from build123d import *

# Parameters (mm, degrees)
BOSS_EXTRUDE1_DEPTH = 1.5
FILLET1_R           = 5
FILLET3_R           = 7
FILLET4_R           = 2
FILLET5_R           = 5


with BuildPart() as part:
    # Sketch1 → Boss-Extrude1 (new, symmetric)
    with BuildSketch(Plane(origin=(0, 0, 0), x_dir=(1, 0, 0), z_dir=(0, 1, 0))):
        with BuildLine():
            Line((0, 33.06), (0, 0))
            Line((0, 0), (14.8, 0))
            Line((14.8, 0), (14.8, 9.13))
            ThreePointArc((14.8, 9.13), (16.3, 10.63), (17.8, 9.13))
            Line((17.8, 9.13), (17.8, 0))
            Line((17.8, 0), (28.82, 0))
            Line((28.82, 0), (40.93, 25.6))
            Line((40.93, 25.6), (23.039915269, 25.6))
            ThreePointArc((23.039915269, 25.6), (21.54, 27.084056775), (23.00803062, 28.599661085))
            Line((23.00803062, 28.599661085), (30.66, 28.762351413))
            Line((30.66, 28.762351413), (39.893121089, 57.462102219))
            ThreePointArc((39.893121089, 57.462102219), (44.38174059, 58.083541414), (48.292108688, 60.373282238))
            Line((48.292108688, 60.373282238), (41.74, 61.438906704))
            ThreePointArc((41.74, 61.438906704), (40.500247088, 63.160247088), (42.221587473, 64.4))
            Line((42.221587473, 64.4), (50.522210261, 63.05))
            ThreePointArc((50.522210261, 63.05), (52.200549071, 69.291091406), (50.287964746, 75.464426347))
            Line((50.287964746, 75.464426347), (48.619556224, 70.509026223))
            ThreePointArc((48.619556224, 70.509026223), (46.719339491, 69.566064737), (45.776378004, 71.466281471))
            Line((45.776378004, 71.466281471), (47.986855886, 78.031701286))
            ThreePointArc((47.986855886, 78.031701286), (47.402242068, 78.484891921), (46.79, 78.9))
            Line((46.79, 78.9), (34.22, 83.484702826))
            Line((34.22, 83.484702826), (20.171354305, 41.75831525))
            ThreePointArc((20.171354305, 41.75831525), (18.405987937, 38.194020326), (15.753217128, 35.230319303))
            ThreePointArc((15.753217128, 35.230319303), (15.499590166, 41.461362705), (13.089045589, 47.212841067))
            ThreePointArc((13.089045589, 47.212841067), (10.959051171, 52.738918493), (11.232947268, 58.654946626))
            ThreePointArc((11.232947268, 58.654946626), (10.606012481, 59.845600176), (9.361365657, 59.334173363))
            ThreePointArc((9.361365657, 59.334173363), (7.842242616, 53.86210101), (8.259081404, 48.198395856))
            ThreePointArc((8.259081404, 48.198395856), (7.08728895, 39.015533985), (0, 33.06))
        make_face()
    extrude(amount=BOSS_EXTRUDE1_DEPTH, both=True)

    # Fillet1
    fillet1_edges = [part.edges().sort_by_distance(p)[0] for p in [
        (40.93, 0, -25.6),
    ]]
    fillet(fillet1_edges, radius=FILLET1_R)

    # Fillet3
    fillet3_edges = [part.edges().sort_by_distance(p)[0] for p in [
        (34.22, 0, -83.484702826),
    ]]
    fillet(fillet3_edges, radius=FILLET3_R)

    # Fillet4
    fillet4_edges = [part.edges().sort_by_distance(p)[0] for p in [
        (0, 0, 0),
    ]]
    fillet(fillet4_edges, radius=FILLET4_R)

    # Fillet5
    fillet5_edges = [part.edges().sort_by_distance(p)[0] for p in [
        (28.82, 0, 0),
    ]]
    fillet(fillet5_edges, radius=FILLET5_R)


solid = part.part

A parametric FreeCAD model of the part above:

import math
import FreeCAD as App
import Part
import Sketcher

V = App.Vector
Q = App.Units.Quantity


def edges_at(feature, points):
    """Names of the edges that pass closest to the given points."""
    edges = feature.Shape.Edges
    near = lambda p: min(range(len(edges)), key=lambda i: edges[i].distToShape(Part.Vertex(*p))[0])
    return sorted({f"Edge{near(p) + 1}" for p in points})

doc = App.newDocument("Part")
body = doc.addObject("PartDesign::Body", "Body")

sketch1 = body.newObject("Sketcher::SketchObject", "Sketch")
sketch1.AttachmentSupport = (doc.getObject("XZ_Plane"), [""])
sketch1.MapMode = "FlatFace"
sketch1.addGeometry([
    Part.LineSegment(V(0, -33.06, 0), V(0, 0, 0)),
    Part.LineSegment(V(0, 0, 0), V(14.8, 0, 0)),
    Part.LineSegment(V(14.8, 0, 0), V(14.8, -9.13, 0)),
    Part.ArcOfCircle(Part.Circle(V(16.3, -9.13, 0), V(0, 0, 1), 1.5), math.radians(180), math.radians(360)),
    Part.LineSegment(V(17.8, -9.13, 0), V(17.8, 0, 0)),
    Part.LineSegment(V(17.8, 0, 0), V(28.82, 0, 0)),
    Part.LineSegment(V(28.82, 0, 0), V(40.93, -25.6, 0)),
    Part.LineSegment(V(40.93, -25.6, 0), V(23.039915, -25.6, 0)),
    Part.ArcOfCircle(Part.Circle(V(23.039915, -27.1, 0), V(0, 0, 1), 1.5), math.radians(90), math.radians(268.782004)),
    Part.LineSegment(V(23.008031, -28.599661, 0), V(30.66, -28.762351, 0)),
    Part.LineSegment(V(30.66, -28.762351, 0), V(39.893121, -57.462102, 0)),
    Part.ArcOfCircle(Part.Circle(V(40.573127, -69.071696, 0), V(0, 0, 1), 11.629491), math.radians(48.414116), math.radians(93.352144)),
    Part.LineSegment(V(48.292109, -60.373282, 0), V(41.74, -61.438907, 0)),
    Part.ArcOfCircle(Part.Circle(V(41.980794, -62.919453, 0), V(0, 0, 1), 1.5), math.radians(99.237612), math.radians(279.237612)),
    Part.LineSegment(V(42.221587, -64.4, 0), V(50.52221, -63.05, 0)),
    Part.ArcOfCircle(Part.Circle(V(40.573127, -69.071696, 0), V(0, 0, 1), 11.629491), math.radians(-33.346429), math.radians(31.184479)),
    Part.LineSegment(V(50.287965, -75.464426, 0), V(48.619556, -70.509026, 0)),
    Part.ArcOfCircle(Part.Circle(V(47.197967, -70.987654, 0), V(0, 0, 1), 1.5), math.radians(18.607604), math.radians(198.607604)),
    Part.LineSegment(V(45.776378, -71.466281, 0), V(47.986856, -78.031701, 0)),
    Part.ArcOfCircle(Part.Circle(V(40.573127, -69.071696, 0), V(0, 0, 1), 11.629492), math.radians(-57.684689), math.radians(-50.39481)),
    Part.LineSegment(V(46.79, -78.9, 0), V(34.22, -83.484703, 0)),
    Part.LineSegment(V(34.22, -83.484703, 0), V(20.171354, -41.758315, 0)),
    Part.ArcOfCircle(Part.Circle(V(6.178695, -46.469433, 0), V(0, 0, 1), 14.764456), math.radians(18.607604), math.radians(49.572554)),
    Part.ArcOfCircle(Part.Circle(V(-1.681539, -37.641342, 0), V(0, 0, 1), 17.600675), math.radians(-32.943674), math.radians(7.873401)),
    Part.ArcOfCircle(Part.Circle(V(25.175638, -55.045083, 0), V(0, 0, 1), 14.402421), math.radians(147.056326), math.radians(194.515554)),
    Part.ArcOfCircle(Part.Circle(V(10.264868, -58.905589, 0), V(0, 0, 1), 1), math.radians(-154.622274), math.radians(14.515554)),
    Part.ArcOfCircle(Part.Circle(V(24.339661, -52.22909, 0), V(0, 0, 1), 16.578044), math.radians(165.928385), math.radians(205.377726)),
    Part.ArcOfCircle(Part.Circle(V(-4.076784, -45.106337, 0), V(0, 0, 1), 12.717484), math.radians(-14.071615), math.radians(71.302887)),
], False)
sketch1.addConstraint([
    Sketcher.Constraint("Coincident", 0, 2, 1, 1),
    Sketcher.Constraint("Coincident", 1, 2, 2, 1),
    Sketcher.Constraint("Tangent", 2, 2, 3, 1),
    Sketcher.Constraint("Tangent", 3, 2, 4, 1),
    Sketcher.Constraint("Coincident", 4, 2, 5, 1),
    Sketcher.Constraint("Coincident", 5, 2, 6, 1),
    Sketcher.Constraint("Coincident", 6, 2, 7, 1),
    Sketcher.Constraint("Tangent", 7, 2, 8, 1),
    Sketcher.Constraint("Tangent", 8, 2, 9, 1),
    Sketcher.Constraint("Coincident", 9, 2, 10, 1),
    Sketcher.Constraint("Coincident", 10, 2, 11, 2),
    Sketcher.Constraint("Coincident", 11, 1, 12, 1),
    Sketcher.Constraint("Tangent", 12, 2, 13, 1),
    Sketcher.Constraint("Tangent", 13, 2, 14, 1),
    Sketcher.Constraint("Coincident", 14, 2, 15, 2),
    Sketcher.Constraint("Coincident", 15, 1, 16, 1),
    Sketcher.Constraint("Tangent", 16, 2, 17, 1),
    Sketcher.Constraint("Tangent", 17, 2, 18, 1),
    Sketcher.Constraint("Coincident", 18, 2, 19, 2),
    Sketcher.Constraint("Coincident", 19, 1, 20, 1),
    Sketcher.Constraint("Coincident", 20, 2, 21, 1),
    Sketcher.Constraint("Tangent", 21, 2, 22, 1),
    Sketcher.Constraint("Coincident", 22, 2, 23, 2),
    Sketcher.Constraint("Tangent", 23, 1, 24, 1),
    Sketcher.Constraint("Tangent", 24, 2, 25, 2),
    Sketcher.Constraint("Tangent", 25, 1, 26, 2),
    Sketcher.Constraint("Tangent", 26, 1, 27, 1),
    Sketcher.Constraint("Coincident", 27, 2, 0, 1),
    Sketcher.Constraint("Vertical", 0),
    Sketcher.Constraint("Horizontal", 1),
    Sketcher.Constraint("Vertical", 2),
    Sketcher.Constraint("Vertical", 4),
    Sketcher.Constraint("Horizontal", 5),
    Sketcher.Constraint("Horizontal", 7),
    Sketcher.Constraint("Coincident", 0, 2, -1, 1),
    Sketcher.Constraint("Coincident", 15, 3, 11, 3),
    Sketcher.Constraint("Coincident", 19, 3, 11, 3),
    Sketcher.Constraint("Equal", 3, 8),
    Sketcher.Constraint("Equal", 8, 13),
    Sketcher.Constraint("Equal", 11, 15),
    Sketcher.Constraint("Equal", 13, 17),
    Sketcher.Constraint("Equal", 15, 19),
    Sketcher.Constraint("PointOnObject", 4, 2, -1),
    Sketcher.Constraint("Parallel", 12, 14),
    Sketcher.Constraint("Parallel", 16, 18),
    Sketcher.Constraint("Parallel", 18, 21),
    Sketcher.Constraint("Radius", 25, Q("1 mm")),
    Sketcher.Constraint("Radius", 3, Q("1.5 mm")),
    Sketcher.Constraint("DistanceX", 1, 1, 1, 2, Q("14.8 mm")),
    Sketcher.Constraint("DistanceX", 5, 1, 5, 2, Q("11.02 mm")),
    Sketcher.Constraint("DistanceY", 0, 1, 0, 2, Q("33.06 mm")),
    Sketcher.Constraint("DistanceY", 2, 2, 2, 1, Q("9.13 mm")),
    Sketcher.Constraint("DistanceY", 8, 3, -1, 1, Q("27.1 mm")),
    Sketcher.Constraint("DistanceY", 13, 2, -1, 1, Q("64.4 mm")),
    Sketcher.Constraint("DistanceY", 19, 1, -1, 1, Q("78.9 mm")),
    Sketcher.Constraint("Distance", 20, Q("13.38 mm")),
    Sketcher.Constraint("DistanceX", -1, 1, 6, 2, Q("40.93 mm")),
    Sketcher.Constraint("DistanceX", -1, 1, 9, 2, Q("30.66 mm")),
    Sketcher.Constraint("DistanceX", -1, 1, 12, 2, Q("41.74 mm")),
    Sketcher.Constraint("DistanceY", 14, 2, -1, 1, Q("63.05 mm")),
    Sketcher.Constraint("DistanceX", -1, 1, 19, 1, Q("46.79 mm")),
    Sketcher.Constraint("DistanceX", -1, 1, 20, 2, Q("34.22 mm")),
    Sketcher.Constraint("Radius", 11, Q("11.629491 mm")),
    Sketcher.Constraint("Radius", 24, Q("14.402421 mm")),
    Sketcher.Constraint("Radius", 22, Q("14.764456 mm")),
    Sketcher.Constraint("Radius", 23, Q("17.600675 mm")),
    Sketcher.Constraint("Radius", 26, Q("16.578044 mm")),
    Sketcher.Constraint("Radius", 27, Q("12.717484 mm")),
    Sketcher.Constraint("DistanceY", 20, 2, 18, 2, Q("5.453002 mm")),
    Sketcher.Constraint("Distance", 9, Q("7.653699 mm")),
    Sketcher.Constraint("Distance", 12, Q("6.638199 mm")),
    Sketcher.Constraint("Distance", 21, Q("44.027899 mm")),
    Sketcher.Constraint("DistanceY", 17, 3, 13, 3, Q("8.0682 mm")),
    Sketcher.Constraint("DistanceX", 22, 3, 13, 3, Q("35.802099 mm")),
    Sketcher.Constraint("DistanceY", 25, 3, 26, 3, Q("6.676499 mm")),
    Sketcher.Constraint("DistanceX", 22, 2, 8, 3, Q("7.286698 mm")),
    Sketcher.Constraint("DistanceX", 24, 2, 23, 1, Q("1.856098 mm")),
    Sketcher.Constraint("DistanceX", 7, 2, 7, 1, Q("17.890085 mm")),
    Sketcher.Constraint("DistanceX", 23, 3, -1, 1, Q("1.681539 mm")),
    Sketcher.Constraint("DistanceY", 25, 3, -1, 1, Q("58.905589 mm")),
    Sketcher.Constraint("DistanceX", -1, 1, 10, 2, Q("39.893121 mm")),
])
pad1 = body.newObject("PartDesign::Pad", "Pad")
pad1.Profile = sketch1
pad1.Length = 3
pad1.Midplane = True
doc.recompute()

fillet = body.newObject("PartDesign::Fillet", "Fillet")
fillet.Base = (pad1, edges_at(pad1, [(40.93, 0, -25.6)]))
fillet.Radius = 5
doc.recompute()

fillet2 = body.newObject("PartDesign::Fillet", "Fillet001")
fillet2.Base = (fillet, edges_at(fillet, [(34.22, 0, -83.485)]))
fillet2.Radius = 7
doc.recompute()

fillet3 = body.newObject("PartDesign::Fillet", "Fillet002")
fillet3.Base = (fillet2, edges_at(fillet2, [(0, 0, 0)]))
fillet3.Radius = 2
doc.recompute()

fillet4 = body.newObject("PartDesign::Fillet", "Fillet003")
fillet4.Base = (fillet3, edges_at(fillet3, [(28.82, 0, 0)]))
fillet4.Radius = 5

doc.recompute()
